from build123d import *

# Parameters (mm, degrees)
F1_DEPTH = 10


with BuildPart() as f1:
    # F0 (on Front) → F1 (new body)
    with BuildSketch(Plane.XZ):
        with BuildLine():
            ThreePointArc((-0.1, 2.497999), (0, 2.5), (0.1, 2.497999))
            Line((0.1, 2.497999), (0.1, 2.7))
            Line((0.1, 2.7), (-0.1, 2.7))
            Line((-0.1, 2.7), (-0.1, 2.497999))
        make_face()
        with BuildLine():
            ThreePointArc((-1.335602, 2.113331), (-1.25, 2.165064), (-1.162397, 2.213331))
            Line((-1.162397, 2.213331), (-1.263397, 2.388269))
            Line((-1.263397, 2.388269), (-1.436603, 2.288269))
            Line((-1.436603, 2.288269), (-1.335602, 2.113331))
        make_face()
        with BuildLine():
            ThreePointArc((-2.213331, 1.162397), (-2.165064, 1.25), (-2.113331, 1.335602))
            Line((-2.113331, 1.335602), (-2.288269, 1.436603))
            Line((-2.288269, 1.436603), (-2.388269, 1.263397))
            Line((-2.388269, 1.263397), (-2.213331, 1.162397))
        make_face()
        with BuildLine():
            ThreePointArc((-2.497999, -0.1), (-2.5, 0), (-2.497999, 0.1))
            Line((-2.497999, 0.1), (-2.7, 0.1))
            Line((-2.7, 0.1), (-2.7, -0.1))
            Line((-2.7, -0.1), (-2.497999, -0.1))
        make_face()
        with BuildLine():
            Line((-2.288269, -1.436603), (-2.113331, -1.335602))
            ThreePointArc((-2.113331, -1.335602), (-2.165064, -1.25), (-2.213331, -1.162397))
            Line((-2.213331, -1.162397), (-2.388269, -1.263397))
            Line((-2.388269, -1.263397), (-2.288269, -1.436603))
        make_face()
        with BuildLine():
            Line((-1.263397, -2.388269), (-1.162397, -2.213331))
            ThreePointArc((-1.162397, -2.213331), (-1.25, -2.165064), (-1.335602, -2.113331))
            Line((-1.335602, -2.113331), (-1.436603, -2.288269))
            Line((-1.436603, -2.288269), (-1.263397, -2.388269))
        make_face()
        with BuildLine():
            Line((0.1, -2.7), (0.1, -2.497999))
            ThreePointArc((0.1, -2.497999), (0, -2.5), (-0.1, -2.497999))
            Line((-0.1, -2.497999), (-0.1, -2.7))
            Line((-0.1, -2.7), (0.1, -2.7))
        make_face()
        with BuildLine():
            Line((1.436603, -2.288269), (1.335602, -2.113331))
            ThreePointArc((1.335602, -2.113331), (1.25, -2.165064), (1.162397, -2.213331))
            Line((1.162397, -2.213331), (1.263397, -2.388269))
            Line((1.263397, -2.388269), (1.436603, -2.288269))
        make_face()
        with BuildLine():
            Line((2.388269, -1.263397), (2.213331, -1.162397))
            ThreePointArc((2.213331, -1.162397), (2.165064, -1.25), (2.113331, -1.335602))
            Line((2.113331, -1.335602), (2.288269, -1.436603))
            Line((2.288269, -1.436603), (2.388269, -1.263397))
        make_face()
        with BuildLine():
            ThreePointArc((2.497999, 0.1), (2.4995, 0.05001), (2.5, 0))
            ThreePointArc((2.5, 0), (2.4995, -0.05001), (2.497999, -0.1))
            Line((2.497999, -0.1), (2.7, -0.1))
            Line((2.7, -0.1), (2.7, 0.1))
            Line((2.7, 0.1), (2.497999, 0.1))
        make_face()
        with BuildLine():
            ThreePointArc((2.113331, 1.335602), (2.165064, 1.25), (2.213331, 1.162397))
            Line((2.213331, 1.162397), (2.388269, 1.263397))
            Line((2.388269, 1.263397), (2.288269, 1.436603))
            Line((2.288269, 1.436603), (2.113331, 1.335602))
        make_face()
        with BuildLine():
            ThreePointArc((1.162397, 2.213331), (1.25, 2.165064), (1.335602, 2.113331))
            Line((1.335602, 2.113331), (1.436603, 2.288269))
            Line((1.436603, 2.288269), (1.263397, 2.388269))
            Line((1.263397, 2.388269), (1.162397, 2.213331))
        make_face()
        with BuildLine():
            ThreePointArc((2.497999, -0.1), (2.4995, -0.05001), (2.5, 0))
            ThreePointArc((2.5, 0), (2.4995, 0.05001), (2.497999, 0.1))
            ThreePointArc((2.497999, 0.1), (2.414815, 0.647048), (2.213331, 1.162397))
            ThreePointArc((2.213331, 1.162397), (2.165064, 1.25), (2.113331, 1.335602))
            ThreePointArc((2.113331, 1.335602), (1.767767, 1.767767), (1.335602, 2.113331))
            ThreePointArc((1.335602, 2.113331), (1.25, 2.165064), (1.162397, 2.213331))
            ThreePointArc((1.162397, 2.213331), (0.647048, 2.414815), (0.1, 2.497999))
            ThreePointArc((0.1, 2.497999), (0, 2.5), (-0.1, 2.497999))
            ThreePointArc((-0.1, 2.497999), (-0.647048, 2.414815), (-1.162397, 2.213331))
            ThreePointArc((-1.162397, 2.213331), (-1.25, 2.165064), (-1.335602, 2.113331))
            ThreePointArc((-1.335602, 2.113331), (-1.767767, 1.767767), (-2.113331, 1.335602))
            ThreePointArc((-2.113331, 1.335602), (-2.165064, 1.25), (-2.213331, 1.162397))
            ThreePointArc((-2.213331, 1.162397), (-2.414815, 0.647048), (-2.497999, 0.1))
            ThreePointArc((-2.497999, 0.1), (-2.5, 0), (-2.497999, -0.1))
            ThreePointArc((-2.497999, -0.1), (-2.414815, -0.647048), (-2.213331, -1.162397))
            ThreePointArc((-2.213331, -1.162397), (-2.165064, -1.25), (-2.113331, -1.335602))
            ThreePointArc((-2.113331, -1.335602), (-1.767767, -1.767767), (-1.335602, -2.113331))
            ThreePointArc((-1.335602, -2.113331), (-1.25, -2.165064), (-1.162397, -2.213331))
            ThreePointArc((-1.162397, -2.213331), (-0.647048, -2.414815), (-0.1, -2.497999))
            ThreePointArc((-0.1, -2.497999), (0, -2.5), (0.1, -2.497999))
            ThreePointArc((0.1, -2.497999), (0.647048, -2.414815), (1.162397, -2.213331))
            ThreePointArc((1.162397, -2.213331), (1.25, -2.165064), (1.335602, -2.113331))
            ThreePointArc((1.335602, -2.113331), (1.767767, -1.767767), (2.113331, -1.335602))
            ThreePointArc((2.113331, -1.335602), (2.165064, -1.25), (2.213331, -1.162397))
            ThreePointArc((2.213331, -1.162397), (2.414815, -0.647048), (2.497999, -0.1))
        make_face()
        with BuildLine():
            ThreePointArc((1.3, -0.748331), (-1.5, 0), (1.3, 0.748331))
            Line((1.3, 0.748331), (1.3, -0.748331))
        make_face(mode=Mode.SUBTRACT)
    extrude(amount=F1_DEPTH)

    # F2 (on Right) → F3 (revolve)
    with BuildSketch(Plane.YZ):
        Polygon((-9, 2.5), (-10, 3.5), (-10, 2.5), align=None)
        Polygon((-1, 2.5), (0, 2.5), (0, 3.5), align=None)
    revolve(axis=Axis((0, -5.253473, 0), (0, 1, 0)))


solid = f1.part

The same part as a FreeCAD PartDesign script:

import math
import FreeCAD as App
import Part
import Sketcher
from FreeCAD import Vector
Q = App.Units.Quantity

doc = App.newDocument("Part")
body = doc.addObject("PartDesign::Body", "Body")

sketch1 = doc.addObject("Sketcher::SketchObject", "Sketch")
body.addObject(sketch1)
sketch1.AttachmentSupport = (doc.XZ_Plane, [""])
sketch1.MapMode = "FlatFace"
sketch1.addGeometry(Part.LineSegment(Vector(0.1, 2.497999, 0), Vector(0.1, 2.7, 0)), False)
sketch1.addGeometry(Part.LineSegment(Vector(0.1, 2.7, 0), Vector(-0.1, 2.7, 0)), False)
sketch1.addGeometry(Part.LineSegment(Vector(-0.1, 2.7, 0), Vector(-0.1, 2.497999, 0)), False)
sketch1.addGeometry(Part.ArcOfCircle(Part.Circle(Vector(-0.000006, 0.000021, 0), Vector(0, 0, 1), 2.499979), math.radians(92.292315), math.radians(117.707643)), False)
sketch1.addGeometry(Part.LineSegment(Vector(-1.162397, 2.213331, 0), Vector(-1.263397, 2.388269, 0)), False)
sketch1.addGeometry(Part.LineSegment(Vector(-1.263397, 2.388269, 0), Vector(-1.436603, 2.288269, 0)), False)
sketch1.addGeometry(Part.LineSegment(Vector(-1.436603, 2.288269, 0), Vector(-1.335602, 2.113331, 0)), False)
sketch1.addGeometry(Part.ArcOfCircle(Part.Circle(Vector(0.000002, -0.000002, 0), Vector(0, 0, 1), 2.500002), math.radians(122.292449), math.radians(147.707551)), False)
sketch1.addGeometry(Part.LineSegment(Vector(-2.113331, 1.335602, 0), Vector(-2.288269, 1.436603, 0)), False)
sketch1.addGeometry(Part.LineSegment(Vector(-2.288269, 1.436603, 0), Vector(-2.388269, 1.263397, 0)), False)
sketch1.addGeometry(Part.LineSegment(Vector(-2.388269, 1.263397, 0), Vector(-2.213331, 1.162397, 0)), False)
sketch1.addGeometry(Part.ArcOfCircle(Part.Circle(Vector(-0.000021, 0.000006, 0), Vector(0, 0, 1), 2.499979), math.radians(152.292357), math.radians(177.707685)), False)
sketch1.addGeometry(Part.LineSegment(Vector(-2.497999, 0.1, 0), Vector(-2.7, 0.1, 0)), False)
sketch1.addGeometry(Part.LineSegment(Vector(-2.7, 0.1, 0), Vector(-2.7, -0.1, 0)), False)
sketch1.addGeometry(Part.LineSegment(Vector(-2.7, -0.1, 0), Vector(-2.497999, -0.1, 0)), False)
sketch1.addGeometry(Part.ArcOfCircle(Part.Circle(Vector(-0.000021, -0.000006, 0), Vector(0, 0, 1), 2.499979), math.radians(-177.707685), math.radians(-152.292357)), False)
sketch1.addGeometry(Part.LineSegment(Vector(-2.213331, -1.162397, 0), Vector(-2.388269, -1.263397, 0)), False)
sketch1.addGeometry(Part.LineSegment(Vector(-2.388269, -1.263397, 0), Vector(-2.288269, -1.436603, 0)), False)
sketch1.addGeometry(Part.LineSegment(Vector(-2.288269, -1.436603, 0), Vector(-2.113331, -1.335602, 0)), False)
sketch1.addGeometry(Part.ArcOfCircle(Part.Circle(Vector(0.000002, 0.000002, 0), Vector(0, 0, 1), 2.500002), math.radians(-147.707551), math.radians(-122.292449)), False)
sketch1.addGeometry(Part.LineSegment(Vector(-1.335602, -2.113331, 0), Vector(-1.436603, -2.288269, 0)), False)
sketch1.addGeometry(Part.LineSegment(Vector(-1.436603, -2.288269, 0), Vector(-1.263397, -2.388269, 0)), False)
sketch1.addGeometry(Part.LineSegment(Vector(-1.263397, -2.388269, 0), Vector(-1.162397, -2.213331, 0)), False)
sketch1.addGeometry(Part.ArcOfCircle(Part.Circle(Vector(-0.000006, -0.000021, 0), Vector(0, 0, 1), 2.499979), math.radians(-117.707643), math.radians(-92.292315)), False)
sketch1.addGeometry(Part.LineSegment(Vector(-0.1, -2.497999, 0), Vector(-0.1, -2.7, 0)), False)
sketch1.addGeometry(Part.LineSegment(Vector(-0.1, -2.7, 0), Vector(0.1, -2.7, 0)), False)
sketch1.addGeometry(Part.LineSegment(Vector(0.1, -2.7, 0), Vector(0.1, -2.497999, 0)), False)
sketch1.addGeometry(Part.ArcOfCircle(Part.Circle(Vector(0.000006, -0.000021, 0), Vector(0, 0, 1), 2.499979), math.radians(-87.707685), math.radians(-62.292357)), False)
sketch1.addGeometry(Part.LineSegment(Vector(1.162397, -2.213331, 0), Vector(1.263397, -2.388269, 0)), False)
sketch1.addGeometry(Part.LineSegment(Vector(1.263397, -2.388269, 0), Vector(1.436603, -2.288269, 0)), False)
sketch1.addGeometry(Part.LineSegment(Vector(1.436603, -2.288269, 0), Vector(1.335602, -2.113331, 0)), False)
sketch1.addGeometry(Part.ArcOfCircle(Part.Circle(Vector(-0.000002, 0.000002, 0), Vector(0, 0, 1), 2.500002), math.radians(-57.707551), math.radians(-32.292449)), False)
sketch1.addGeometry(Part.LineSegment(Vector(2.113331, -1.335602, 0), Vector(2.288269, -1.436603, 0)), False)
sketch1.addGeometry(Part.LineSegment(Vector(2.288269, -1.436603, 0), Vector(2.388269, -1.263397, 0)), False)
sketch1.addGeometry(Part.LineSegment(Vector(2.388269, -1.263397, 0), Vector(2.213331, -1.162397, 0)), False)
sketch1.addGeometry(Part.ArcOfCircle(Part.Circle(Vector(0.000021, -0.000006, 0), Vector(0, 0, 1), 2.499979), math.radians(-27.707643), math.radians(-2.292315)), False)
sketch1.addGeometry(Part.LineSegment(Vector(2.497999, -0.1, 0), Vector(2.7, -0.1, 0)), False)
sketch1.addGeometry(Part.LineSegment(Vector(2.7, -0.1, 0), Vector(2.7, 0.1, 0)), False)
sketch1.addGeometry(Part.LineSegment(Vector(2.7, 0.1, 0), Vector(2.497999, 0.1, 0)), False)
sketch1.addGeometry(Part.ArcOfCircle(Part.Circle(Vector(0.000021, 0.000006, 0), Vector(0, 0, 1), 2.499979), math.radians(2.292315), math.radians(27.707643)), False)
sketch1.addGeometry(Part.LineSegment(Vector(2.213331, 1.162397, 0), Vector(2.388269, 1.263397, 0)), False)
sketch1.addGeometry(Part.LineSegment(Vector(2.388269, 1.263397, 0), Vector(2.288269, 1.436603, 0)), False)
sketch1.addGeometry(Part.LineSegment(Vector(2.288269, 1.436603, 0), Vector(2.113331, 1.335602, 0)), False)
sketch1.addGeometry(Part.ArcOfCircle(Part.Circle(Vector(-0.000002, -0.000002, 0), Vector(0, 0, 1), 2.500002), math.radians(32.292449), math.radians(57.707551)), False)
sketch1.addGeometry(Part.LineSegment(Vector(1.335602, 2.113331, 0), Vector(1.436603, 2.288269, 0)), False)
sketch1.addGeometry(Part.LineSegment(Vector(1.436603, 2.288269, 0), Vector(1.263397, 2.388269, 0)), False)
sketch1.addGeometry(Part.LineSegment(Vector(1.263397, 2.388269, 0), Vector(1.162397, 2.213331, 0)), False)
sketch1.addGeometry(Part.ArcOfCircle(Part.Circle(Vector(0.000006, 0.000021, 0), Vector(0, 0, 1), 2.499979), math.radians(62.292357), math.radians(87.707685)), False)
sketch1.addGeometry(Part.LineSegment(Vector(1.3, 0.748331, 0), Vector(1.3, -0.748331, 0)), False)
sketch1.addGeometry(Part.ArcOfCircle(Part.Circle(Vector(0, 0, 0), Vector(0, 0, 1), 1.5), math.radians(29.926417), math.radians(330.073583)), False)
sketch1.addConstraint(Sketcher.Constraint("Coincident", 0, 2, 1, 1))
sketch1.addConstraint(Sketcher.Constraint("Coincident", 1, 2, 2, 1))
sketch1.addConstraint(Sketcher.Constraint("Coincident", 2, 2, 3, 1))
sketch1.addConstraint(Sketcher.Constraint("Coincident", 3, 2, 4, 1))
sketch1.addConstraint(Sketcher.Constraint("Coincident", 4, 2, 5, 1))
sketch1.addConstraint(Sketcher.Constraint("Coincident", 5, 2, 6, 1))
sketch1.addConstraint(Sketcher.Constraint("Coincident", 6, 2, 7, 1))
sketch1.addConstraint(Sketcher.Constraint("Coincident", 7, 2, 8, 1))
sketch1.addConstraint(Sketcher.Constraint("Coincident", 8, 2, 9, 1))
sketch1.addConstraint(Sketcher.Constraint("Coincident", 9, 2, 10, 1))
sketch1.addConstraint(Sketcher.Constraint("Coincident", 10, 2, 11, 1))
sketch1.addConstraint(Sketcher.Constraint("Coincident", 11, 2, 12, 1))
sketch1.addConstraint(Sketcher.Constraint("Coincident", 12, 2, 13, 1))
sketch1.addConstraint(Sketcher.Constraint("Coincident", 13, 2, 14, 1))
sketch1.addConstraint(Sketcher.Constraint("Coincident", 14, 2, 15, 1))
sketch1.addConstraint(Sketcher.Constraint("Coincident", 15, 2, 16, 1))
sketch1.addConstraint(Sketcher.Constraint("Coincident", 16, 2, 17, 1))
sketch1.addConstraint(Sketcher.Constraint("Coincident", 17, 2, 18, 1))
sketch1.addConstraint(Sketcher.Constraint("Coincident", 18, 2, 19, 1))
sketch1.addConstraint(Sketcher.Constraint("Coincident", 19, 2, 20, 1))
sketch1.addConstraint(Sketcher.Constraint("Coincident", 20, 2, 21, 1))
sketch1.addConstraint(Sketcher.Constraint("Coincident", 21, 2, 22, 1))
sketch1.addConstraint(Sketcher.Constraint("Coincident", 22, 2, 23, 1))
sketch1.addConstraint(Sketcher.Constraint("Coincident", 23, 2, 24, 1))
sketch1.addConstraint(Sketcher.Constraint("Coincident", 24, 2, 25, 1))
sketch1.addConstraint(Sketcher.Constraint("Coincident", 25, 2, 26, 1))
sketch1.addConstraint(Sketcher.Constraint("Coincident", 26, 2, 27, 1))
sketch1.addConstraint(Sketcher.Constraint("Coincident", 27, 2, 28, 1))
sketch1.addConstraint(Sketcher.Constraint("Coincident", 28, 2, 29, 1))
sketch1.addConstraint(Sketcher.Constraint("Coincident", 29, 2, 30, 1))
sketch1.addConstraint(Sketcher.Constraint("Coincident", 30, 2, 31, 1))
sketch1.addConstraint(Sketcher.Constraint("Coincident", 31, 2, 32, 1))
sketch1.addConstraint(Sketcher.Constraint("Coincident", 32, 2, 33, 1))
sketch1.addConstraint(Sketcher.Constraint("Coincident", 33, 2, 34, 1))
sketch1.addConstraint(Sketcher.Constraint("Coincident", 34, 2, 35, 1))
sketch1.addConstraint(Sketcher.Constraint("Coincident", 35, 2, 36, 1))
sketch1.addConstraint(Sketcher.Constraint("Coincident", 36, 2, 37, 1))
sketch1.addConstraint(Sketcher.Constraint("Coincident", 37, 2, 38, 1))
sketch1.addConstraint(Sketcher.Constraint("Coincident", 38, 2, 39, 1))
sketch1.addConstraint(Sketcher.Constraint("Coincident", 39, 2, 40, 1))
sketch1.addConstraint(Sketcher.Constraint("Coincident", 40, 2, 41, 1))
sketch1.addConstraint(Sketcher.Constraint("Coincident", 41, 2, 42, 1))
sketch1.addConstraint(Sketcher.Constraint("Coincident", 42, 2, 43, 1))
sketch1.addConstraint(Sketcher.Constraint("Coincident", 43, 2, 44, 1))
sketch1.addConstraint(Sketcher.Constraint("Coincident", 44, 2, 45, 1))
sketch1.addConstraint(Sketcher.Constraint("Coincident", 45, 2, 46, 1))
sketch1.addConstraint(Sketcher.Constraint("Coincident", 46, 2, 47, 1))
sketch1.addConstraint(Sketcher.Constraint("Coincident", 47, 2, 0, 1))
sketch1.addConstraint(Sketcher.Constraint("Coincident", 48, 1, 49, 1))
sketch1.addConstraint(Sketcher.Constraint("Coincident", 49, 2, 48, 2))
sketch1.addConstraint(Sketcher.Constraint("Vertical", 0))
sketch1.addConstraint(Sketcher.Constraint("Horizontal", 1))
sketch1.addConstraint(Sketcher.Constraint("Vertical", 2))
sketch1.addConstraint(Sketcher.Constraint("Horizontal", 12))
sketch1.addConstraint(Sketcher.Constraint("Vertical", 13))
sketch1.addConstraint(Sketcher.Constraint("Horizontal", 14))
sketch1.addConstraint(Sketcher.Constraint("Vertical", 24))
sketch1.addConstraint(Sketcher.Constraint("Horizontal", 25))
sketch1.addConstraint(Sketcher.Constraint("Vertical", 26))
sketch1.addConstraint(Sketcher.Constraint("Horizontal", 36))
sketch1.addConstraint(Sketcher.Constraint("Vertical", 37))
sketch1.addConstraint(Sketcher.Constraint("Horizontal", 38))
sketch1.addConstraint(Sketcher.Constraint("Vertical", 48))
sketch1.addConstraint(Sketcher.Constraint("Coincident", 7, 3, -1, 1))
sketch1.addConstraint(Sketcher.Constraint("Coincident", 19, 3, -1, 1))
sketch1.addConstraint(Sketcher.Constraint("Coincident", 31, 3, -1, 1))
sketch1.addConstraint(Sketcher.Constraint("Coincident", 43, 3, -1, 1))
sketch1.addConstraint(Sketcher.Constraint("Coincident", 49, 3, -1, 1))
sketch1.addConstraint(Sketcher.Constraint("Equal", 3, 11))
sketch1.addConstraint(Sketcher.Constraint("Equal", 11, 15))
sketch1.addConstraint(Sketcher.Constraint("Equal", 7, 19))
sketch1.addConstraint(Sketcher.Constraint("Equal", 15, 23))
sketch1.addConstraint(Sketcher.Constraint("Equal", 23, 27))
sketch1.addConstraint(Sketcher.Constraint("Equal", 19, 31))
sketch1.addConstraint(Sketcher.Constraint("Equal", 27, 35))
sketch1.addConstraint(Sketcher.Constraint("Equal", 35, 39))
sketch1.addConstraint(Sketcher.Constraint("Equal", 31, 43))
sketch1.addConstraint(Sketcher.Constraint("Equal", 39, 47))
sketch1.addConstraint(Sketcher.Constraint("Symmetric", 3, 3, 27, 3, -1, 1))
sketch1.addConstraint(Sketcher.Constraint("Symmetric", 11, 3, 35, 3, -1, 1))
sketch1.addConstraint(Sketcher.Constraint("Symmetric", 15, 3, 39, 3, -1, 1))
sketch1.addConstraint(Sketcher.Constraint("Symmetric", 23, 3, 47, 3, -1, 1))
sketch1.addConstraint(Sketcher.Constraint("Symmetric", 0, 2, 24, 2, -1, 1))
sketch1.addConstraint(Sketcher.Constraint("Symmetric", 4, 2, 28, 2, -1, 1))
sketch1.addConstraint(Sketcher.Constraint("Symmetric", 5, 2, 29, 2, -1, 1))
sketch1.addConstraint(Sketcher.Constraint("Symmetric", 8, 2, 32, 2, -1, 1))
sketch1.addConstraint(Sketcher.Constraint("Symmetric", 9, 2, 33, 2, -1, 1))
sketch1.addConstraint(Sketcher.Constraint("Symmetric", 12, 2, 36, 2, -1, 1))
sketch1.addConstraint(Sketcher.Constraint("Symmetric", 16, 2, 40, 2, -1, 1))
sketch1.addConstraint(Sketcher.Constraint("Symmetric", 17, 2, 41, 2, -1, 1))
sketch1.addConstraint(Sketcher.Constraint("Symmetric", 20, 2, 44, 2, -1, 1))
sketch1.addConstraint(Sketcher.Constraint("Symmetric", 21, 2, 45, 2, -1, 1))
sketch1.addConstraint(Sketcher.Constraint("Symmetric", 23, 3, 27, 3, -2))
sketch1.addConstraint(Sketcher.Constraint("Symmetric", 15, 3, 35, 3, -2))
sketch1.addConstraint(Sketcher.Constraint("Symmetric", 21, 2, 28, 2, -2))
sketch1.addConstraint(Sketcher.Constraint("Symmetric", 20, 2, 29, 2, -2))
sketch1.addConstraint(Sketcher.Constraint("Symmetric", 17, 2, 32, 2, -2))
sketch1.addConstraint(Sketcher.Constraint("Symmetric", 16, 2, 33, 2, -2))
sketch1.addConstraint(Sketcher.Constraint("Perpendicular", 4, 5))
sketch1.addConstraint(Sketcher.Constraint("Perpendicular", 9, 10))
sketch1.addConstraint(Sketcher.Constraint("Parallel", 5, 16))
sketch1.addConstraint(Sketcher.Constraint("Perpendicular", 16, 17))
sketch1.addConstraint(Sketcher.Constraint("Perpendicular", 6, 18))
sketch1.addConstraint(Sketcher.Constraint("Perpendicular", 8, 20))
sketch1.addConstraint(Sketcher.Constraint("Perpendicular", 21, 22))
sketch1.addConstraint(Sketcher.Constraint("Parallel", 17, 28))
sketch1.addConstraint(Sketcher.Constraint("Perpendicular", 18, 30))
sketch1.addConstraint(Sketcher.Constraint("Perpendicular", 20, 32))
sketch1.addConstraint(Sketcher.Constraint("Perpendicular", 33, 34))
sketch1.addConstraint(Sketcher.Constraint("Parallel", 29, 40))
sketch1.addConstraint(Sketcher.Constraint("Perpendicular", 30, 42))
sketch1.addConstraint(Sketcher.Constraint("Perpendicular", 32, 44))
sketch1.addConstraint(Sketcher.Constraint("Perpendicular", 45, 46))
sketch1.addConstraint(Sketcher.Constraint("Horizontal", 23, 2, 26, 2))
sketch1.addConstraint(Sketcher.Constraint("Horizontal", 19, 2, 30, 2))
sketch1.addConstraint(Sketcher.Constraint("Horizontal", 14, 2, 35, 2))
sketch1.addConstraint(Sketcher.Constraint("Horizontal", 12, 2, 37, 2))
sketch1.addConstraint(Sketcher.Constraint("Horizontal", 2, 2, 47, 2))
sketch1.addConstraint(Sketcher.Constraint("Equal", 38, 0))
sketch1.addConstraint(Sketcher.Constraint("Equal", 25, 13))
sketch1.addConstraint(Sketcher.Constraint("Equal", 4, 6))
sketch1.addConstraint(Sketcher.Constraint("Equal", 6, 8))
sketch1.addConstraint(Sketcher.Constraint("Equal", 5, 9))
sketch1.addConstraint(Sketcher.Constraint("Equal", 8, 10))
sketch1.addConstraint(Sketcher.Constraint("Radius", 49, Q("1.5 mm")))
sketch1.addConstraint(Sketcher.Constraint("DistanceX", 1, 2, 1, 1, Q("0.2 mm")))
sketch1.addConstraint(Sketcher.Constraint("Distance", 5, Q("0.200001 mm")))
sketch1.addConstraint(Sketcher.Constraint("DistanceY", -1, 1, 0, 2, Q("2.7 mm")))
sketch1.addConstraint(Sketcher.Constraint("DistanceX", 12, 2, -1, 1, Q("2.7 mm")))
sketch1.addConstraint(Sketcher.Constraint("DistanceX", -1, 1, 48, 1, Q("1.3 mm")))
sketch1.addConstraint(Sketcher.Constraint("DistanceX", 12, 2, 12, 1, Q("0.202001 mm")))
sketch1.addConstraint(Sketcher.Constraint("Radius", 3, Q("2.499979 mm")))
sketch1.addConstraint(Sketcher.Constraint("Distance", 4, Q("0.202001 mm")))
sketch1.addConstraint(Sketcher.Constraint("Radius", 7, Q("2.500002 mm")))
sketch1.addConstraint(Sketcher.Constraint("DistanceY", -1, 1, 7, 2, Q("1.335602 mm")))
sketch1.addConstraint(Sketcher.Constraint("DistanceX", 19, 2, -1, 1, Q("1.335602 mm")))
sketch1.addConstraint(Sketcher.Constraint("DistanceY", -1, 1, 3, 2, Q("2.213331 mm")))
sketch1.addConstraint(Sketcher.Constraint("DistanceY", -1, 1, 4, 2, Q("2.388269 mm")))
pad1 = doc.addObject("PartDesign::Pad", "Pad")
body.addObject(pad1)
pad1.Profile = sketch1
pad1.Length = 10

sketch2 = doc.addObject("Sketcher::SketchObject", "Sketch001")
body.addObject(sketch2)
sketch2.AttachmentSupport = (doc.YZ_Plane, [""])
sketch2.MapMode = "FlatFace"
sketch2.addGeometry(Part.LineSegment(Vector(-9, 2.5, 0), Vector(-10, 3.5, 0)), False)
sketch2.addGeometry(Part.LineSegment(Vector(-10, 3.5, 0), Vector(-10, 2.5, 0)), False)
sketch2.addGeometry(Part.LineSegment(Vector(-10, 2.5, 0), Vector(-9, 2.5, 0)), False)
sketch2.addGeometry(Part.LineSegment(Vector(-1, 2.5, 0), Vector(0, 2.5, 0)), False)
sketch2.addGeometry(Part.LineSegment(Vector(0, 2.5, 0), Vector(0, 3.5, 0)), False)
sketch2.addGeometry(Part.LineSegment(Vector(0, 3.5, 0), Vector(-1, 2.5, 0)), False)
sketch2.addConstraint(Sketcher.Constraint("Coincident", 0, 2, 1, 1))
sketch2.addConstraint(Sketcher.Constraint("Coincident", 1, 2, 2, 1))
sketch2.addConstraint(Sketcher.Constraint("Coincident", 2, 2, 0, 1))
sketch2.addConstraint(Sketcher.Constraint("Coincident", 3, 2, 4, 1))
sketch2.addConstraint(Sketcher.Constraint("Coincident", 4, 2, 5, 1))
sketch2.addConstraint(Sketcher.Constraint("Coincident", 5, 2, 3, 1))
sketch2.addConstraint(Sketcher.Constraint("Vertical", 1))
sketch2.addConstraint(Sketcher.Constraint("Horizontal", 2))
sketch2.addConstraint(Sketcher.Constraint("Horizontal", 3))
sketch2.addConstraint(Sketcher.Constraint("Vertical", 4))
sketch2.addConstraint(Sketcher.Constraint("PointOnObject", 3, 2, -2))
sketch2.addConstraint(Sketcher.Constraint("Perpendicular", 0, 5))
sketch2.addConstraint(Sketcher.Constraint("Horizontal", 2, 2, 3, 2))
sketch2.addConstraint(Sketcher.Constraint("Horizontal", 0, 2, 4, 2))
sketch2.addConstraint(Sketcher.Constraint("Equal", 2, 3))
sketch2.addConstraint(Sketcher.Constraint("DistanceX", 2, 1, 2, 2, Q("1 mm")))
sketch2.addConstraint(Sketcher.Constraint("DistanceX", 0, 2, -1, 1, Q("10 mm")))
sketch2.addConstraint(Sketcher.Constraint("DistanceY", -1, 1, 0, 2, Q("3.5 mm")))
revolution = doc.addObject("PartDesign::Revolution", "Revolution")
body.addObject(revolution)
revolution.Profile = sketch2
revolution.ReferenceAxis = (sketch2, ["H_Axis"])
revolution.Angle = 360

doc.recompute()
